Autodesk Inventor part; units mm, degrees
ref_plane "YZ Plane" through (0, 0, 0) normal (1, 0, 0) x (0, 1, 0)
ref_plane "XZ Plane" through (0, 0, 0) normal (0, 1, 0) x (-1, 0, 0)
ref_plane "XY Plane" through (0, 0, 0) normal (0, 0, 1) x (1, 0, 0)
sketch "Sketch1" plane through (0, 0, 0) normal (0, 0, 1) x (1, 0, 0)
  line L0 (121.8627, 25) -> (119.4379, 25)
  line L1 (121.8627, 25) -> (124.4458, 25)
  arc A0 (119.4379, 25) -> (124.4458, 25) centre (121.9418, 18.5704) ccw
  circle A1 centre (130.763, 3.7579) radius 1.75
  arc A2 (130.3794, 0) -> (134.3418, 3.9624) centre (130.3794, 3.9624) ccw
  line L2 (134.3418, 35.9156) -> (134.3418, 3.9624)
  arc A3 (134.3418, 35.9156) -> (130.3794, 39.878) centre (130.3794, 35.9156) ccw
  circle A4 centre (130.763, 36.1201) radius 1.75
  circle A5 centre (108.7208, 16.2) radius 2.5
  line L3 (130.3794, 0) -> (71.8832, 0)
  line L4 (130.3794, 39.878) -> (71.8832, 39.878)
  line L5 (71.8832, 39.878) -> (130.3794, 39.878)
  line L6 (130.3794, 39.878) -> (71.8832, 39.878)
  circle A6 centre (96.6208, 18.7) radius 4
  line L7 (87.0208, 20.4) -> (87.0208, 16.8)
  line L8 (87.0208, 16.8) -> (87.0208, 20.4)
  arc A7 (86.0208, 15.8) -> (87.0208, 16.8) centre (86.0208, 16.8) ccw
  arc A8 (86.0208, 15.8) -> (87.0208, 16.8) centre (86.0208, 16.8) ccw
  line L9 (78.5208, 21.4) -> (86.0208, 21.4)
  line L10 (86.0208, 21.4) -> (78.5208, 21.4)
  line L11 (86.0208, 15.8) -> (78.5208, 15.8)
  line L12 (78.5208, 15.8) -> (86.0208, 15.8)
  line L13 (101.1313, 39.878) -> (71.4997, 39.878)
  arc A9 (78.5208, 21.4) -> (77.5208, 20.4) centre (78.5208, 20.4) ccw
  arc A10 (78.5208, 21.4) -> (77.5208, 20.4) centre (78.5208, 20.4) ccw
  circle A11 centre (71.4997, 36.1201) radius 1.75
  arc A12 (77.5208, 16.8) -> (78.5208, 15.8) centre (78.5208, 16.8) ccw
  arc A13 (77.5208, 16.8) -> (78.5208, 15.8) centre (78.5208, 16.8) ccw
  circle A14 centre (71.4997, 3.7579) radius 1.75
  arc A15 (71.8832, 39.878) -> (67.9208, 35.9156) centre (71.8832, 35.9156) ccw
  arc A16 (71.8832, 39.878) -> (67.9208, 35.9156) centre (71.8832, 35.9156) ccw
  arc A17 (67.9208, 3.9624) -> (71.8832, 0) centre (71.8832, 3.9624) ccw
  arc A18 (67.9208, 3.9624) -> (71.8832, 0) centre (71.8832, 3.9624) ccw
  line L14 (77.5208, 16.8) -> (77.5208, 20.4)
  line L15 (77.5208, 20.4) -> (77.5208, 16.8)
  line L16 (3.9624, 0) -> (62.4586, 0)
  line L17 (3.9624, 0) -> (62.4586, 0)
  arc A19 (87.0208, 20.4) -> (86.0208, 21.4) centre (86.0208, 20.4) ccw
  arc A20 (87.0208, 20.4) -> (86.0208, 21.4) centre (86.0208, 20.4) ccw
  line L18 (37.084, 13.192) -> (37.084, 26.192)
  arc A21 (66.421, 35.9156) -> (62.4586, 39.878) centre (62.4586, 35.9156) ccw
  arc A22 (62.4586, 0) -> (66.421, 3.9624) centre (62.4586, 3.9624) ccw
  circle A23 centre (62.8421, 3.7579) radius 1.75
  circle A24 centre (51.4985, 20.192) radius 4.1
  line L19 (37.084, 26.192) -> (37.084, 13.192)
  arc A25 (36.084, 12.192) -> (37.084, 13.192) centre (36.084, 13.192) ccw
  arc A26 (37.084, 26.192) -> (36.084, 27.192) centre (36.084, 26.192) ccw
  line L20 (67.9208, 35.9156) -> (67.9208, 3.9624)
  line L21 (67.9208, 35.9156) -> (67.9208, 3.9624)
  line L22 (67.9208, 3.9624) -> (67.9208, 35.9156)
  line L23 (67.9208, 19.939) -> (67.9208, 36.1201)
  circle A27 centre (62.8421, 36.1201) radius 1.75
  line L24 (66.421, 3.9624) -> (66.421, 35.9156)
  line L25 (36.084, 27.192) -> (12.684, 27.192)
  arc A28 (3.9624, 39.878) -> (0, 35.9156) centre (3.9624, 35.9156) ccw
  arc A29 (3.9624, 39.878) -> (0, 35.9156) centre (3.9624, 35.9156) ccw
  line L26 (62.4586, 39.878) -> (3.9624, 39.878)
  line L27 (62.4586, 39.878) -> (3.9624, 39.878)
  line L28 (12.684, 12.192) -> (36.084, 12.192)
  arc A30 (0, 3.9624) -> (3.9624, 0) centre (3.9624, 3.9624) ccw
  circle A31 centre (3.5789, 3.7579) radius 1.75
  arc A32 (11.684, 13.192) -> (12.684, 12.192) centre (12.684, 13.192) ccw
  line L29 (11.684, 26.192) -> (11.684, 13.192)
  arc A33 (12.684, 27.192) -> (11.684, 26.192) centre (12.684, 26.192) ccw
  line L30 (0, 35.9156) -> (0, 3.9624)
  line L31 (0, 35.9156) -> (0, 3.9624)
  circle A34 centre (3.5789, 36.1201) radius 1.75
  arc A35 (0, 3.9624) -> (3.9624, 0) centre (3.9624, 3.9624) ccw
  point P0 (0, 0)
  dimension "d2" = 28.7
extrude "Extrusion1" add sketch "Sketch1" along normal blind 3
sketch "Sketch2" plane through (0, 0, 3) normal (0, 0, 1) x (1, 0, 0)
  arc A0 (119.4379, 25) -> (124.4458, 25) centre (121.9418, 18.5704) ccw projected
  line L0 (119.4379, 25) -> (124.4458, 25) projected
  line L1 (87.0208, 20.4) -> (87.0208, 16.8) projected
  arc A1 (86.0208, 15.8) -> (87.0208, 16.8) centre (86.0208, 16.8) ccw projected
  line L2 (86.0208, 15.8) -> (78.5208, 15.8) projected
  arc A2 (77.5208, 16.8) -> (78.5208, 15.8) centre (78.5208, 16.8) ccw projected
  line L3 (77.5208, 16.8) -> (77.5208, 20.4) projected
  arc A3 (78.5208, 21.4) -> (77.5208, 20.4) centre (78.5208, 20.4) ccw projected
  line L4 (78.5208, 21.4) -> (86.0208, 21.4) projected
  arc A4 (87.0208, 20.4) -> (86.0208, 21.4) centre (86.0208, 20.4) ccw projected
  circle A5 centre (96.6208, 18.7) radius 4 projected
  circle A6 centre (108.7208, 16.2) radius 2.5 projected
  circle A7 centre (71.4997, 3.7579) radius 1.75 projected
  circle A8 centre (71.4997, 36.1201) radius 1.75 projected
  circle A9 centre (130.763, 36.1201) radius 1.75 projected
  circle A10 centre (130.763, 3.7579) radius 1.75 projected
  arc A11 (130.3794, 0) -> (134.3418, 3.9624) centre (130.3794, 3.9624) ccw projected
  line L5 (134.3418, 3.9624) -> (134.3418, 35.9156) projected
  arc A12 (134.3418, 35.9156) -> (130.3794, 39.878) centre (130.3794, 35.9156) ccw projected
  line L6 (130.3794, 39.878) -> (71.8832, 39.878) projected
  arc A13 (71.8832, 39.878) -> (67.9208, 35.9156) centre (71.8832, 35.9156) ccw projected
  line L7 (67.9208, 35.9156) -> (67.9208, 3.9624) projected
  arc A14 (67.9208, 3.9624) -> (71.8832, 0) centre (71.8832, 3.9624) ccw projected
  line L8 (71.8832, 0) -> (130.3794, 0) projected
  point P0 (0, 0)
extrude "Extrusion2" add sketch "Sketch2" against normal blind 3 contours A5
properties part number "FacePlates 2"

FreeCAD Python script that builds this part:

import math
import FreeCAD as App
import Part
import Sketcher
from FreeCAD import Vector
Q = App.Units.Quantity

doc = App.newDocument("Part")
params = doc.addObject("Spreadsheet::Sheet", "Params")
for row, (alias, value) in enumerate([
    ("sketch1_diameter", "8 mm"),
    ("sketch1_diameter2", "5 mm"),
    ("sketch1_radius", "1 mm"),
    ("sketch1_diameter3", "3.5 mm"),
    ("sketch1_diameter4", "8.2 mm"),
    ("pad1_length", "3 mm"),
    ("sketch2_diameter", "8 mm"),
    ("pad2_length", "3 mm"),
], start=1):
    params.set(f"A{row}", alias)
    params.set(f"B{row}", "=" + value)
    params.setAlias(f"B{row}", alias)

body = doc.addObject("PartDesign::Body", "Body")
body.AllowCompound = True

sketch1 = body.newObject("Sketcher::SketchObject", "Sketch")
sketch1.AttachmentSupport = (doc.getObject("XY_Plane"), [""])
sketch1.MapMode = "FlatFace"
sketch1.addGeometry([
    Part.LineSegment(Vector(71.9, 0, 0), Vector(130.4, 0, 0)),
    Part.ArcOfCircle(Part.Circle(Vector(130.4, 4, 0), Vector(0, 0, 1), 4), math.radians(-90), math.radians(0)),
    Part.LineSegment(Vector(134.3, 4, 0), Vector(134.3, 35.9, 0)),
    Part.ArcOfCircle(Part.Circle(Vector(130.4, 35.9, 0), Vector(0, 0, 1), 4), math.radians(0), math.radians(90)),
    Part.LineSegment(Vector(130.4, 39.9, 0), Vector(71.9, 39.9, 0)),
    Part.ArcOfCircle(Part.Circle(Vector(71.9, 35.9, 0), Vector(0, 0, 1), 4), math.radians(90), math.radians(180)),
    Part.LineSegment(Vector(67.9, 35.9, 0), Vector(67.9, 4, 0)),
    Part.ArcOfCircle(Part.Circle(Vector(71.9, 4, 0), Vector(0, 0, 1), 4), math.radians(180), math.radians(270)),
    Part.Circle(Vector(71.5, 3.8, 0), Vector(0, 0, 1), 1.8),
    Part.Circle(Vector(130.8, 3.8, 0), Vector(0, 0, 1), 1.8),
    Part.ArcOfCircle(Part.Circle(Vector(86, 20.4, 0), Vector(0, 0, 1), 1), math.radians(0), math.radians(90)),
    Part.LineSegment(Vector(87, 20.4, 0), Vector(87, 16.8, 0)),
    Part.ArcOfCircle(Part.Circle(Vector(86, 16.8, 0), Vector(0, 0, 1), 1), math.radians(-90), math.radians(0)),
    Part.LineSegment(Vector(86, 15.8, 0), Vector(78.5, 15.8, 0)),
    Part.ArcOfCircle(Part.Circle(Vector(78.5, 16.8, 0), Vector(0, 0, 1), 1), math.radians(180), math.radians(270)),
    Part.LineSegment(Vector(77.5, 16.8, 0), Vector(77.5, 20.4, 0)),
    Part.ArcOfCircle(Part.Circle(Vector(78.5, 20.4, 0), Vector(0, 0, 1), 1), math.radians(90), math.radians(180)),
    Part.LineSegment(Vector(78.5, 21.4, 0), Vector(86, 21.4, 0)),
    Part.Circle(Vector(96.6, 18.7, 0), Vector(0, 0, 1), 4),
    Part.Circle(Vector(108.7, 16.2, 0), Vector(0, 0, 1), 2.5),
    Part.LineSegment(Vector(119.4, 25, 0), Vector(124.4, 25, 0)),
    Part.ArcOfCircle(Part.Circle(Vector(121.9, 18.6, 0), Vector(0, 0, 1), 6.9), math.radians(111), math.radians(429)),
    Part.Circle(Vector(71.5, 36.1, 0), Vector(0, 0, 1), 1.8),
    Part.Circle(Vector(130.8, 36.1, 0), Vector(0, 0, 1), 1.8),
    Part.ArcOfCircle(Part.Circle(Vector(4, 4, 0), Vector(0, 0, 1), 4), math.radians(180), math.radians(270)),
    Part.LineSegment(Vector(4, 0, 0), Vector(62.5, 0, 0)),
    Part.ArcOfCircle(Part.Circle(Vector(62.5, 4, 0), Vector(0, 0, 1), 4), math.radians(-90), math.radians(0)),
    Part.LineSegment(Vector(66.4, 4, 0), Vector(66.4, 35.9, 0)),
    Part.ArcOfCircle(Part.Circle(Vector(62.5, 35.9, 0), Vector(0, 0, 1), 4), math.radians(0), math.radians(90)),
    Part.LineSegment(Vector(62.5, 39.9, 0), Vector(4, 39.9, 0)),
    Part.ArcOfCircle(Part.Circle(Vector(4, 35.9, 0), Vector(0, 0, 1), 4), math.radians(90), math.radians(180)),
    Part.LineSegment(Vector(0, 35.9, 0), Vector(0, 4, 0)),
    Part.Circle(Vector(3.6, 3.8, 0), Vector(0, 0, 1), 1.8),
    Part.Circle(Vector(62.8, 3.8, 0), Vector(0, 0, 1), 1.8),
    Part.LineSegment(Vector(37.1, 26.2, 0), Vector(37.1, 13.2, 0)),
    Part.ArcOfCircle(Part.Circle(Vector(36.1, 13.2, 0), Vector(0, 0, 1), 1), math.radians(-90), math.radians(0)),
    Part.LineSegment(Vector(36.1, 12.2, 0), Vector(12.7, 12.2, 0)),
    Part.ArcOfCircle(Part.Circle(Vector(12.7, 13.2, 0), Vector(0, 0, 1), 1), math.radians(180), math.radians(270)),
    Part.LineSegment(Vector(11.7, 13.2, 0), Vector(11.7, 26.2, 0)),
    Part.ArcOfCircle(Part.Circle(Vector(12.7, 26.2, 0), Vector(0, 0, 1), 1), math.radians(90), math.radians(180)),
    Part.LineSegment(Vector(12.7, 27.2, 0), Vector(36.1, 27.2, 0)),
    Part.ArcOfCircle(Part.Circle(Vector(36.1, 26.2, 0), Vector(0, 0, 1), 1), math.radians(0), math.radians(90)),
    Part.Circle(Vector(51.5, 20.2, 0), Vector(0, 0, 1), 4.1),
    Part.Circle(Vector(3.6, 36.1, 0), Vector(0, 0, 1), 1.8),
    Part.Circle(Vector(62.8, 36.1, 0), Vector(0, 0, 1), 1.8),
], False)
sketch1.addConstraint([
    Sketcher.Constraint("Tangent", 0, 2, 1, 1),
    Sketcher.Constraint("Tangent", 1, 2, 2, 1),
    Sketcher.Constraint("Tangent", 2, 2, 3, 1),
    Sketcher.Constraint("Tangent", 3, 2, 4, 1),
    Sketcher.Constraint("Tangent", 4, 2, 5, 1),
    Sketcher.Constraint("Tangent", 5, 2, 6, 1),
    Sketcher.Constraint("Tangent", 6, 2, 7, 1),
    Sketcher.Constraint("Tangent", 7, 2, 0, 1),
    Sketcher.Constraint("Tangent", 10, 1, 11, 1),
    Sketcher.Constraint("Tangent", 11, 2, 12, 2),
    Sketcher.Constraint("Tangent", 12, 1, 13, 1),
    Sketcher.Constraint("Tangent", 13, 2, 14, 2),
    Sketcher.Constraint("Tangent", 14, 1, 15, 1),
    Sketcher.Constraint("Tangent", 15, 2, 16, 2),
    Sketcher.Constraint("Tangent", 16, 1, 17, 1),
    Sketcher.Constraint("Tangent", 17, 2, 10, 2),
    Sketcher.Constraint("Coincident", 20, 1, 21, 1),
    Sketcher.Constraint("Coincident", 21, 2, 20, 2),
    Sketcher.Constraint("Tangent", 24, 2, 25, 1),
    Sketcher.Constraint("Tangent", 25, 2, 26, 1),
    Sketcher.Constraint("Tangent", 26, 2, 27, 1),
    Sketcher.Constraint("Tangent", 27, 2, 28, 1),
    Sketcher.Constraint("Tangent", 28, 2, 29, 1),
    Sketcher.Constraint("Tangent", 29, 2, 30, 1),
    Sketcher.Constraint("Tangent", 30, 2, 31, 1),
    Sketcher.Constraint("Tangent", 31, 2, 24, 1),
    Sketcher.Constraint("Tangent", 34, 2, 35, 2),
    Sketcher.Constraint("Tangent", 35, 1, 36, 1),
    Sketcher.Constraint("Tangent", 36, 2, 37, 2),
    Sketcher.Constraint("Tangent", 37, 1, 38, 1),
    Sketcher.Constraint("Tangent", 38, 2, 39, 2),
    Sketcher.Constraint("Tangent", 39, 1, 40, 1),
    Sketcher.Constraint("Tangent", 40, 2, 41, 2),
    Sketcher.Constraint("Tangent", 41, 1, 34, 1),
    Sketcher.Constraint("Horizontal", 0),
    Sketcher.Constraint("Vertical", 2),
    Sketcher.Constraint("Horizontal", 4),
    Sketcher.Constraint("Vertical", 6),
    Sketcher.Constraint("Vertical", 11),
    Sketcher.Constraint("Horizontal", 13),
    Sketcher.Constraint("Vertical", 15),
    Sketcher.Constraint("Horizontal", 17),
    Sketcher.Constraint("Horizontal", 20),
    Sketcher.Constraint("Horizontal", 25),
    Sketcher.Constraint("Vertical", 27),
    Sketcher.Constraint("Horizontal", 29),
    Sketcher.Constraint("Vertical", 31),
    Sketcher.Constraint("Vertical", 34),
    Sketcher.Constraint("Horizontal", 36),
    Sketcher.Constraint("Vertical", 38),
    Sketcher.Constraint("Horizontal", 40),
    Sketcher.Constraint("Equal", 1, 3),
    Sketcher.Constraint("Equal", 3, 5),
    Sketcher.Constraint("Equal", 5, 7),
    Sketcher.Constraint("Equal", 8, 9),
    Sketcher.Constraint("Equal", 10, 12),
    Sketcher.Constraint("Equal", 12, 14),
    Sketcher.Constraint("Equal", 14, 16),
    Sketcher.Constraint("Equal", 9, 22),
    Sketcher.Constraint("Equal", 22, 23),
    Sketcher.Constraint("Equal", 7, 24),
    Sketcher.Constraint("Equal", 24, 26),
    Sketcher.Constraint("Equal", 26, 28),
    Sketcher.Constraint("Equal", 28, 30),
    Sketcher.Constraint("Equal", 23, 32),
    Sketcher.Constraint("Equal", 32, 33),
    Sketcher.Constraint("Equal", 16, 35),
    Sketcher.Constraint("Equal", 35, 37),
    Sketcher.Constraint("Equal", 37, 39),
    Sketcher.Constraint("Equal", 39, 41),
    Sketcher.Constraint("Equal", 33, 43),
    Sketcher.Constraint("Equal", 43, 44),
    Sketcher.Constraint("PointOnObject", 0, 2, -1),
    Sketcher.Constraint("PointOnObject", 24, 2, -1),
    Sketcher.Constraint("PointOnObject", 30, 2, -2),
    Sketcher.Constraint("Horizontal", 8, 3, 9, 3),
    Sketcher.Constraint("Horizontal", 22, 3, 23, 3),
    Sketcher.Constraint("Horizontal", 5, 3, 28, 3),
    Sketcher.Constraint("Horizontal", 9, 3, 32, 3),
    Sketcher.Constraint("Horizontal", 32, 3, 33, 3),
    Sketcher.Constraint("Horizontal", 23, 3, 43, 3),
    Sketcher.Constraint("Horizontal", 43, 3, 44, 3),
    Sketcher.Constraint("Vertical", 8, 3, 22, 3),
    Sketcher.Constraint("Vertical", 9, 3, 23, 3),
    Sketcher.Constraint("Vertical", 32, 3, 43, 3),
    Sketcher.Constraint("Vertical", 33, 3, 44, 3),
    Sketcher.Constraint("Equal", 4, 25),
    Sketcher.Constraint("Diameter", 18, Q("8 mm")),
    Sketcher.Constraint("Diameter", 19, Q("5 mm")),
    Sketcher.Constraint("Radius", 10, Q("1 mm")),
    Sketcher.Constraint("Diameter", 8, Q("3.5 mm")),
    Sketcher.Constraint("Diameter", 42, Q("8.2 mm")),
    Sketcher.Constraint("Radius", 21, Q("6.9 mm")),
    Sketcher.Constraint("DistanceY", 34, 2, 34, 1, Q("13 mm")),
    Sketcher.Constraint("DistanceX", 13, 2, 13, 1, Q("7.5 mm")),
    Sketcher.Constraint("DistanceX", 36, 2, 36, 1, Q("23.4 mm")),
    Sketcher.Constraint("DistanceY", 11, 2, 11, 1, Q("3.6 mm")),
    Sketcher.Constraint("DistanceY", -1, 1, 20, 1, Q("25 mm")),
    Sketcher.Constraint("DistanceY", -1, 1, 10, 3, Q("20.4 mm")),
    Sketcher.Constraint("DistanceY", -1, 1, 18, 3, Q("18.7 mm")),
    Sketcher.Constraint("DistanceY", -1, 1, 19, 3, Q("16.2 mm")),
    Sketcher.Constraint("Radius", 1, Q("3.9624 mm")),
    Sketcher.Constraint("DistanceX", 20, 1, 20, 2, Q("5.008 mm")),
    Sketcher.Constraint("DistanceY", -1, 1, 22, 3, Q("36.12 mm")),
    Sketcher.Constraint("DistanceX", 0, 1, 0, 2, Q("58.4962 mm")),
    Sketcher.Constraint("DistanceY", 2, 1, 2, 2, Q("31.9532 mm")),
    Sketcher.Constraint("DistanceY", -1, 1, 8, 3, Q("3.758 mm")),
    Sketcher.Constraint("DistanceX", -1, 1, 9, 3, Q("130.763 mm")),
    Sketcher.Constraint("DistanceX", -1, 1, 32, 3, Q("3.579 mm")),
    Sketcher.Constraint("DistanceX", -1, 1, 33, 3, Q("62.842 mm")),
    Sketcher.Constraint("DistanceX", -1, 1, 35, 3, Q("36.084 mm")),
    Sketcher.Constraint("DistanceY", -1, 1, 35, 3, Q("13.192 mm")),
    Sketcher.Constraint("DistanceY", -1, 1, 42, 3, Q("20.192 mm")),
    Sketcher.Constraint("DistanceX", -1, 1, 20, 1, Q("119.438 mm")),
    Sketcher.Constraint("DistanceX", -1, 1, 1, 3, Q("130.3794 mm")),
    Sketcher.Constraint("DistanceX", -1, 1, 8, 3, Q("71.4997 mm")),
    Sketcher.Constraint("DistanceX", -1, 1, 10, 3, Q("86.0208 mm")),
    Sketcher.Constraint("DistanceX", -1, 1, 18, 3, Q("96.6208 mm")),
    Sketcher.Constraint("DistanceX", -1, 1, 19, 3, Q("108.7208 mm")),
    Sketcher.Constraint("DistanceX", -1, 1, 42, 3, Q("51.4985 mm")),
])
sketch1.setExpression("Constraints[87]", "Params.sketch1_diameter")
sketch1.setExpression("Constraints[88]", "Params.sketch1_diameter2")
sketch1.setExpression("Constraints[89]", "Params.sketch1_radius")
sketch1.setExpression("Constraints[90]", "Params.sketch1_diameter3")
sketch1.setExpression("Constraints[91]", "Params.sketch1_diameter4")
pad1 = body.newObject("PartDesign::Pad", "Pad")
pad1.Profile = sketch1
pad1.setExpression("Length", "Params.pad1_length")

sketch2 = body.newObject("Sketcher::SketchObject", "Sketch001")
sketch2.AttachmentSupport = (doc.getObject("XY_Plane"), [""])
sketch2.MapMode = "FlatFace"
sketch2.AttachmentOffset = App.Placement(Vector(0, 0, 3), App.Rotation())
sketch2.addGeometry(Part.Circle(Vector(96.6, 18.7, 0), Vector(0, 0, 1), 4), False)
sketch2.addConstraint([
    Sketcher.Constraint("Diameter", 0, Q("8 mm")),
    Sketcher.Constraint("DistanceY", -1, 1, 0, 3, Q("18.7 mm")),
    Sketcher.Constraint("DistanceX", -1, 1, 0, 3, Q("96.6208 mm")),
])
sketch2.setExpression("Constraints[0]", "Params.sketch2_diameter")
pad2 = body.newObject("PartDesign::Pad", "Pad001")
pad2.Profile = sketch2
pad2.setExpression("Length", "Params.pad2_length")
pad2.Reversed = True

doc.recompute()
